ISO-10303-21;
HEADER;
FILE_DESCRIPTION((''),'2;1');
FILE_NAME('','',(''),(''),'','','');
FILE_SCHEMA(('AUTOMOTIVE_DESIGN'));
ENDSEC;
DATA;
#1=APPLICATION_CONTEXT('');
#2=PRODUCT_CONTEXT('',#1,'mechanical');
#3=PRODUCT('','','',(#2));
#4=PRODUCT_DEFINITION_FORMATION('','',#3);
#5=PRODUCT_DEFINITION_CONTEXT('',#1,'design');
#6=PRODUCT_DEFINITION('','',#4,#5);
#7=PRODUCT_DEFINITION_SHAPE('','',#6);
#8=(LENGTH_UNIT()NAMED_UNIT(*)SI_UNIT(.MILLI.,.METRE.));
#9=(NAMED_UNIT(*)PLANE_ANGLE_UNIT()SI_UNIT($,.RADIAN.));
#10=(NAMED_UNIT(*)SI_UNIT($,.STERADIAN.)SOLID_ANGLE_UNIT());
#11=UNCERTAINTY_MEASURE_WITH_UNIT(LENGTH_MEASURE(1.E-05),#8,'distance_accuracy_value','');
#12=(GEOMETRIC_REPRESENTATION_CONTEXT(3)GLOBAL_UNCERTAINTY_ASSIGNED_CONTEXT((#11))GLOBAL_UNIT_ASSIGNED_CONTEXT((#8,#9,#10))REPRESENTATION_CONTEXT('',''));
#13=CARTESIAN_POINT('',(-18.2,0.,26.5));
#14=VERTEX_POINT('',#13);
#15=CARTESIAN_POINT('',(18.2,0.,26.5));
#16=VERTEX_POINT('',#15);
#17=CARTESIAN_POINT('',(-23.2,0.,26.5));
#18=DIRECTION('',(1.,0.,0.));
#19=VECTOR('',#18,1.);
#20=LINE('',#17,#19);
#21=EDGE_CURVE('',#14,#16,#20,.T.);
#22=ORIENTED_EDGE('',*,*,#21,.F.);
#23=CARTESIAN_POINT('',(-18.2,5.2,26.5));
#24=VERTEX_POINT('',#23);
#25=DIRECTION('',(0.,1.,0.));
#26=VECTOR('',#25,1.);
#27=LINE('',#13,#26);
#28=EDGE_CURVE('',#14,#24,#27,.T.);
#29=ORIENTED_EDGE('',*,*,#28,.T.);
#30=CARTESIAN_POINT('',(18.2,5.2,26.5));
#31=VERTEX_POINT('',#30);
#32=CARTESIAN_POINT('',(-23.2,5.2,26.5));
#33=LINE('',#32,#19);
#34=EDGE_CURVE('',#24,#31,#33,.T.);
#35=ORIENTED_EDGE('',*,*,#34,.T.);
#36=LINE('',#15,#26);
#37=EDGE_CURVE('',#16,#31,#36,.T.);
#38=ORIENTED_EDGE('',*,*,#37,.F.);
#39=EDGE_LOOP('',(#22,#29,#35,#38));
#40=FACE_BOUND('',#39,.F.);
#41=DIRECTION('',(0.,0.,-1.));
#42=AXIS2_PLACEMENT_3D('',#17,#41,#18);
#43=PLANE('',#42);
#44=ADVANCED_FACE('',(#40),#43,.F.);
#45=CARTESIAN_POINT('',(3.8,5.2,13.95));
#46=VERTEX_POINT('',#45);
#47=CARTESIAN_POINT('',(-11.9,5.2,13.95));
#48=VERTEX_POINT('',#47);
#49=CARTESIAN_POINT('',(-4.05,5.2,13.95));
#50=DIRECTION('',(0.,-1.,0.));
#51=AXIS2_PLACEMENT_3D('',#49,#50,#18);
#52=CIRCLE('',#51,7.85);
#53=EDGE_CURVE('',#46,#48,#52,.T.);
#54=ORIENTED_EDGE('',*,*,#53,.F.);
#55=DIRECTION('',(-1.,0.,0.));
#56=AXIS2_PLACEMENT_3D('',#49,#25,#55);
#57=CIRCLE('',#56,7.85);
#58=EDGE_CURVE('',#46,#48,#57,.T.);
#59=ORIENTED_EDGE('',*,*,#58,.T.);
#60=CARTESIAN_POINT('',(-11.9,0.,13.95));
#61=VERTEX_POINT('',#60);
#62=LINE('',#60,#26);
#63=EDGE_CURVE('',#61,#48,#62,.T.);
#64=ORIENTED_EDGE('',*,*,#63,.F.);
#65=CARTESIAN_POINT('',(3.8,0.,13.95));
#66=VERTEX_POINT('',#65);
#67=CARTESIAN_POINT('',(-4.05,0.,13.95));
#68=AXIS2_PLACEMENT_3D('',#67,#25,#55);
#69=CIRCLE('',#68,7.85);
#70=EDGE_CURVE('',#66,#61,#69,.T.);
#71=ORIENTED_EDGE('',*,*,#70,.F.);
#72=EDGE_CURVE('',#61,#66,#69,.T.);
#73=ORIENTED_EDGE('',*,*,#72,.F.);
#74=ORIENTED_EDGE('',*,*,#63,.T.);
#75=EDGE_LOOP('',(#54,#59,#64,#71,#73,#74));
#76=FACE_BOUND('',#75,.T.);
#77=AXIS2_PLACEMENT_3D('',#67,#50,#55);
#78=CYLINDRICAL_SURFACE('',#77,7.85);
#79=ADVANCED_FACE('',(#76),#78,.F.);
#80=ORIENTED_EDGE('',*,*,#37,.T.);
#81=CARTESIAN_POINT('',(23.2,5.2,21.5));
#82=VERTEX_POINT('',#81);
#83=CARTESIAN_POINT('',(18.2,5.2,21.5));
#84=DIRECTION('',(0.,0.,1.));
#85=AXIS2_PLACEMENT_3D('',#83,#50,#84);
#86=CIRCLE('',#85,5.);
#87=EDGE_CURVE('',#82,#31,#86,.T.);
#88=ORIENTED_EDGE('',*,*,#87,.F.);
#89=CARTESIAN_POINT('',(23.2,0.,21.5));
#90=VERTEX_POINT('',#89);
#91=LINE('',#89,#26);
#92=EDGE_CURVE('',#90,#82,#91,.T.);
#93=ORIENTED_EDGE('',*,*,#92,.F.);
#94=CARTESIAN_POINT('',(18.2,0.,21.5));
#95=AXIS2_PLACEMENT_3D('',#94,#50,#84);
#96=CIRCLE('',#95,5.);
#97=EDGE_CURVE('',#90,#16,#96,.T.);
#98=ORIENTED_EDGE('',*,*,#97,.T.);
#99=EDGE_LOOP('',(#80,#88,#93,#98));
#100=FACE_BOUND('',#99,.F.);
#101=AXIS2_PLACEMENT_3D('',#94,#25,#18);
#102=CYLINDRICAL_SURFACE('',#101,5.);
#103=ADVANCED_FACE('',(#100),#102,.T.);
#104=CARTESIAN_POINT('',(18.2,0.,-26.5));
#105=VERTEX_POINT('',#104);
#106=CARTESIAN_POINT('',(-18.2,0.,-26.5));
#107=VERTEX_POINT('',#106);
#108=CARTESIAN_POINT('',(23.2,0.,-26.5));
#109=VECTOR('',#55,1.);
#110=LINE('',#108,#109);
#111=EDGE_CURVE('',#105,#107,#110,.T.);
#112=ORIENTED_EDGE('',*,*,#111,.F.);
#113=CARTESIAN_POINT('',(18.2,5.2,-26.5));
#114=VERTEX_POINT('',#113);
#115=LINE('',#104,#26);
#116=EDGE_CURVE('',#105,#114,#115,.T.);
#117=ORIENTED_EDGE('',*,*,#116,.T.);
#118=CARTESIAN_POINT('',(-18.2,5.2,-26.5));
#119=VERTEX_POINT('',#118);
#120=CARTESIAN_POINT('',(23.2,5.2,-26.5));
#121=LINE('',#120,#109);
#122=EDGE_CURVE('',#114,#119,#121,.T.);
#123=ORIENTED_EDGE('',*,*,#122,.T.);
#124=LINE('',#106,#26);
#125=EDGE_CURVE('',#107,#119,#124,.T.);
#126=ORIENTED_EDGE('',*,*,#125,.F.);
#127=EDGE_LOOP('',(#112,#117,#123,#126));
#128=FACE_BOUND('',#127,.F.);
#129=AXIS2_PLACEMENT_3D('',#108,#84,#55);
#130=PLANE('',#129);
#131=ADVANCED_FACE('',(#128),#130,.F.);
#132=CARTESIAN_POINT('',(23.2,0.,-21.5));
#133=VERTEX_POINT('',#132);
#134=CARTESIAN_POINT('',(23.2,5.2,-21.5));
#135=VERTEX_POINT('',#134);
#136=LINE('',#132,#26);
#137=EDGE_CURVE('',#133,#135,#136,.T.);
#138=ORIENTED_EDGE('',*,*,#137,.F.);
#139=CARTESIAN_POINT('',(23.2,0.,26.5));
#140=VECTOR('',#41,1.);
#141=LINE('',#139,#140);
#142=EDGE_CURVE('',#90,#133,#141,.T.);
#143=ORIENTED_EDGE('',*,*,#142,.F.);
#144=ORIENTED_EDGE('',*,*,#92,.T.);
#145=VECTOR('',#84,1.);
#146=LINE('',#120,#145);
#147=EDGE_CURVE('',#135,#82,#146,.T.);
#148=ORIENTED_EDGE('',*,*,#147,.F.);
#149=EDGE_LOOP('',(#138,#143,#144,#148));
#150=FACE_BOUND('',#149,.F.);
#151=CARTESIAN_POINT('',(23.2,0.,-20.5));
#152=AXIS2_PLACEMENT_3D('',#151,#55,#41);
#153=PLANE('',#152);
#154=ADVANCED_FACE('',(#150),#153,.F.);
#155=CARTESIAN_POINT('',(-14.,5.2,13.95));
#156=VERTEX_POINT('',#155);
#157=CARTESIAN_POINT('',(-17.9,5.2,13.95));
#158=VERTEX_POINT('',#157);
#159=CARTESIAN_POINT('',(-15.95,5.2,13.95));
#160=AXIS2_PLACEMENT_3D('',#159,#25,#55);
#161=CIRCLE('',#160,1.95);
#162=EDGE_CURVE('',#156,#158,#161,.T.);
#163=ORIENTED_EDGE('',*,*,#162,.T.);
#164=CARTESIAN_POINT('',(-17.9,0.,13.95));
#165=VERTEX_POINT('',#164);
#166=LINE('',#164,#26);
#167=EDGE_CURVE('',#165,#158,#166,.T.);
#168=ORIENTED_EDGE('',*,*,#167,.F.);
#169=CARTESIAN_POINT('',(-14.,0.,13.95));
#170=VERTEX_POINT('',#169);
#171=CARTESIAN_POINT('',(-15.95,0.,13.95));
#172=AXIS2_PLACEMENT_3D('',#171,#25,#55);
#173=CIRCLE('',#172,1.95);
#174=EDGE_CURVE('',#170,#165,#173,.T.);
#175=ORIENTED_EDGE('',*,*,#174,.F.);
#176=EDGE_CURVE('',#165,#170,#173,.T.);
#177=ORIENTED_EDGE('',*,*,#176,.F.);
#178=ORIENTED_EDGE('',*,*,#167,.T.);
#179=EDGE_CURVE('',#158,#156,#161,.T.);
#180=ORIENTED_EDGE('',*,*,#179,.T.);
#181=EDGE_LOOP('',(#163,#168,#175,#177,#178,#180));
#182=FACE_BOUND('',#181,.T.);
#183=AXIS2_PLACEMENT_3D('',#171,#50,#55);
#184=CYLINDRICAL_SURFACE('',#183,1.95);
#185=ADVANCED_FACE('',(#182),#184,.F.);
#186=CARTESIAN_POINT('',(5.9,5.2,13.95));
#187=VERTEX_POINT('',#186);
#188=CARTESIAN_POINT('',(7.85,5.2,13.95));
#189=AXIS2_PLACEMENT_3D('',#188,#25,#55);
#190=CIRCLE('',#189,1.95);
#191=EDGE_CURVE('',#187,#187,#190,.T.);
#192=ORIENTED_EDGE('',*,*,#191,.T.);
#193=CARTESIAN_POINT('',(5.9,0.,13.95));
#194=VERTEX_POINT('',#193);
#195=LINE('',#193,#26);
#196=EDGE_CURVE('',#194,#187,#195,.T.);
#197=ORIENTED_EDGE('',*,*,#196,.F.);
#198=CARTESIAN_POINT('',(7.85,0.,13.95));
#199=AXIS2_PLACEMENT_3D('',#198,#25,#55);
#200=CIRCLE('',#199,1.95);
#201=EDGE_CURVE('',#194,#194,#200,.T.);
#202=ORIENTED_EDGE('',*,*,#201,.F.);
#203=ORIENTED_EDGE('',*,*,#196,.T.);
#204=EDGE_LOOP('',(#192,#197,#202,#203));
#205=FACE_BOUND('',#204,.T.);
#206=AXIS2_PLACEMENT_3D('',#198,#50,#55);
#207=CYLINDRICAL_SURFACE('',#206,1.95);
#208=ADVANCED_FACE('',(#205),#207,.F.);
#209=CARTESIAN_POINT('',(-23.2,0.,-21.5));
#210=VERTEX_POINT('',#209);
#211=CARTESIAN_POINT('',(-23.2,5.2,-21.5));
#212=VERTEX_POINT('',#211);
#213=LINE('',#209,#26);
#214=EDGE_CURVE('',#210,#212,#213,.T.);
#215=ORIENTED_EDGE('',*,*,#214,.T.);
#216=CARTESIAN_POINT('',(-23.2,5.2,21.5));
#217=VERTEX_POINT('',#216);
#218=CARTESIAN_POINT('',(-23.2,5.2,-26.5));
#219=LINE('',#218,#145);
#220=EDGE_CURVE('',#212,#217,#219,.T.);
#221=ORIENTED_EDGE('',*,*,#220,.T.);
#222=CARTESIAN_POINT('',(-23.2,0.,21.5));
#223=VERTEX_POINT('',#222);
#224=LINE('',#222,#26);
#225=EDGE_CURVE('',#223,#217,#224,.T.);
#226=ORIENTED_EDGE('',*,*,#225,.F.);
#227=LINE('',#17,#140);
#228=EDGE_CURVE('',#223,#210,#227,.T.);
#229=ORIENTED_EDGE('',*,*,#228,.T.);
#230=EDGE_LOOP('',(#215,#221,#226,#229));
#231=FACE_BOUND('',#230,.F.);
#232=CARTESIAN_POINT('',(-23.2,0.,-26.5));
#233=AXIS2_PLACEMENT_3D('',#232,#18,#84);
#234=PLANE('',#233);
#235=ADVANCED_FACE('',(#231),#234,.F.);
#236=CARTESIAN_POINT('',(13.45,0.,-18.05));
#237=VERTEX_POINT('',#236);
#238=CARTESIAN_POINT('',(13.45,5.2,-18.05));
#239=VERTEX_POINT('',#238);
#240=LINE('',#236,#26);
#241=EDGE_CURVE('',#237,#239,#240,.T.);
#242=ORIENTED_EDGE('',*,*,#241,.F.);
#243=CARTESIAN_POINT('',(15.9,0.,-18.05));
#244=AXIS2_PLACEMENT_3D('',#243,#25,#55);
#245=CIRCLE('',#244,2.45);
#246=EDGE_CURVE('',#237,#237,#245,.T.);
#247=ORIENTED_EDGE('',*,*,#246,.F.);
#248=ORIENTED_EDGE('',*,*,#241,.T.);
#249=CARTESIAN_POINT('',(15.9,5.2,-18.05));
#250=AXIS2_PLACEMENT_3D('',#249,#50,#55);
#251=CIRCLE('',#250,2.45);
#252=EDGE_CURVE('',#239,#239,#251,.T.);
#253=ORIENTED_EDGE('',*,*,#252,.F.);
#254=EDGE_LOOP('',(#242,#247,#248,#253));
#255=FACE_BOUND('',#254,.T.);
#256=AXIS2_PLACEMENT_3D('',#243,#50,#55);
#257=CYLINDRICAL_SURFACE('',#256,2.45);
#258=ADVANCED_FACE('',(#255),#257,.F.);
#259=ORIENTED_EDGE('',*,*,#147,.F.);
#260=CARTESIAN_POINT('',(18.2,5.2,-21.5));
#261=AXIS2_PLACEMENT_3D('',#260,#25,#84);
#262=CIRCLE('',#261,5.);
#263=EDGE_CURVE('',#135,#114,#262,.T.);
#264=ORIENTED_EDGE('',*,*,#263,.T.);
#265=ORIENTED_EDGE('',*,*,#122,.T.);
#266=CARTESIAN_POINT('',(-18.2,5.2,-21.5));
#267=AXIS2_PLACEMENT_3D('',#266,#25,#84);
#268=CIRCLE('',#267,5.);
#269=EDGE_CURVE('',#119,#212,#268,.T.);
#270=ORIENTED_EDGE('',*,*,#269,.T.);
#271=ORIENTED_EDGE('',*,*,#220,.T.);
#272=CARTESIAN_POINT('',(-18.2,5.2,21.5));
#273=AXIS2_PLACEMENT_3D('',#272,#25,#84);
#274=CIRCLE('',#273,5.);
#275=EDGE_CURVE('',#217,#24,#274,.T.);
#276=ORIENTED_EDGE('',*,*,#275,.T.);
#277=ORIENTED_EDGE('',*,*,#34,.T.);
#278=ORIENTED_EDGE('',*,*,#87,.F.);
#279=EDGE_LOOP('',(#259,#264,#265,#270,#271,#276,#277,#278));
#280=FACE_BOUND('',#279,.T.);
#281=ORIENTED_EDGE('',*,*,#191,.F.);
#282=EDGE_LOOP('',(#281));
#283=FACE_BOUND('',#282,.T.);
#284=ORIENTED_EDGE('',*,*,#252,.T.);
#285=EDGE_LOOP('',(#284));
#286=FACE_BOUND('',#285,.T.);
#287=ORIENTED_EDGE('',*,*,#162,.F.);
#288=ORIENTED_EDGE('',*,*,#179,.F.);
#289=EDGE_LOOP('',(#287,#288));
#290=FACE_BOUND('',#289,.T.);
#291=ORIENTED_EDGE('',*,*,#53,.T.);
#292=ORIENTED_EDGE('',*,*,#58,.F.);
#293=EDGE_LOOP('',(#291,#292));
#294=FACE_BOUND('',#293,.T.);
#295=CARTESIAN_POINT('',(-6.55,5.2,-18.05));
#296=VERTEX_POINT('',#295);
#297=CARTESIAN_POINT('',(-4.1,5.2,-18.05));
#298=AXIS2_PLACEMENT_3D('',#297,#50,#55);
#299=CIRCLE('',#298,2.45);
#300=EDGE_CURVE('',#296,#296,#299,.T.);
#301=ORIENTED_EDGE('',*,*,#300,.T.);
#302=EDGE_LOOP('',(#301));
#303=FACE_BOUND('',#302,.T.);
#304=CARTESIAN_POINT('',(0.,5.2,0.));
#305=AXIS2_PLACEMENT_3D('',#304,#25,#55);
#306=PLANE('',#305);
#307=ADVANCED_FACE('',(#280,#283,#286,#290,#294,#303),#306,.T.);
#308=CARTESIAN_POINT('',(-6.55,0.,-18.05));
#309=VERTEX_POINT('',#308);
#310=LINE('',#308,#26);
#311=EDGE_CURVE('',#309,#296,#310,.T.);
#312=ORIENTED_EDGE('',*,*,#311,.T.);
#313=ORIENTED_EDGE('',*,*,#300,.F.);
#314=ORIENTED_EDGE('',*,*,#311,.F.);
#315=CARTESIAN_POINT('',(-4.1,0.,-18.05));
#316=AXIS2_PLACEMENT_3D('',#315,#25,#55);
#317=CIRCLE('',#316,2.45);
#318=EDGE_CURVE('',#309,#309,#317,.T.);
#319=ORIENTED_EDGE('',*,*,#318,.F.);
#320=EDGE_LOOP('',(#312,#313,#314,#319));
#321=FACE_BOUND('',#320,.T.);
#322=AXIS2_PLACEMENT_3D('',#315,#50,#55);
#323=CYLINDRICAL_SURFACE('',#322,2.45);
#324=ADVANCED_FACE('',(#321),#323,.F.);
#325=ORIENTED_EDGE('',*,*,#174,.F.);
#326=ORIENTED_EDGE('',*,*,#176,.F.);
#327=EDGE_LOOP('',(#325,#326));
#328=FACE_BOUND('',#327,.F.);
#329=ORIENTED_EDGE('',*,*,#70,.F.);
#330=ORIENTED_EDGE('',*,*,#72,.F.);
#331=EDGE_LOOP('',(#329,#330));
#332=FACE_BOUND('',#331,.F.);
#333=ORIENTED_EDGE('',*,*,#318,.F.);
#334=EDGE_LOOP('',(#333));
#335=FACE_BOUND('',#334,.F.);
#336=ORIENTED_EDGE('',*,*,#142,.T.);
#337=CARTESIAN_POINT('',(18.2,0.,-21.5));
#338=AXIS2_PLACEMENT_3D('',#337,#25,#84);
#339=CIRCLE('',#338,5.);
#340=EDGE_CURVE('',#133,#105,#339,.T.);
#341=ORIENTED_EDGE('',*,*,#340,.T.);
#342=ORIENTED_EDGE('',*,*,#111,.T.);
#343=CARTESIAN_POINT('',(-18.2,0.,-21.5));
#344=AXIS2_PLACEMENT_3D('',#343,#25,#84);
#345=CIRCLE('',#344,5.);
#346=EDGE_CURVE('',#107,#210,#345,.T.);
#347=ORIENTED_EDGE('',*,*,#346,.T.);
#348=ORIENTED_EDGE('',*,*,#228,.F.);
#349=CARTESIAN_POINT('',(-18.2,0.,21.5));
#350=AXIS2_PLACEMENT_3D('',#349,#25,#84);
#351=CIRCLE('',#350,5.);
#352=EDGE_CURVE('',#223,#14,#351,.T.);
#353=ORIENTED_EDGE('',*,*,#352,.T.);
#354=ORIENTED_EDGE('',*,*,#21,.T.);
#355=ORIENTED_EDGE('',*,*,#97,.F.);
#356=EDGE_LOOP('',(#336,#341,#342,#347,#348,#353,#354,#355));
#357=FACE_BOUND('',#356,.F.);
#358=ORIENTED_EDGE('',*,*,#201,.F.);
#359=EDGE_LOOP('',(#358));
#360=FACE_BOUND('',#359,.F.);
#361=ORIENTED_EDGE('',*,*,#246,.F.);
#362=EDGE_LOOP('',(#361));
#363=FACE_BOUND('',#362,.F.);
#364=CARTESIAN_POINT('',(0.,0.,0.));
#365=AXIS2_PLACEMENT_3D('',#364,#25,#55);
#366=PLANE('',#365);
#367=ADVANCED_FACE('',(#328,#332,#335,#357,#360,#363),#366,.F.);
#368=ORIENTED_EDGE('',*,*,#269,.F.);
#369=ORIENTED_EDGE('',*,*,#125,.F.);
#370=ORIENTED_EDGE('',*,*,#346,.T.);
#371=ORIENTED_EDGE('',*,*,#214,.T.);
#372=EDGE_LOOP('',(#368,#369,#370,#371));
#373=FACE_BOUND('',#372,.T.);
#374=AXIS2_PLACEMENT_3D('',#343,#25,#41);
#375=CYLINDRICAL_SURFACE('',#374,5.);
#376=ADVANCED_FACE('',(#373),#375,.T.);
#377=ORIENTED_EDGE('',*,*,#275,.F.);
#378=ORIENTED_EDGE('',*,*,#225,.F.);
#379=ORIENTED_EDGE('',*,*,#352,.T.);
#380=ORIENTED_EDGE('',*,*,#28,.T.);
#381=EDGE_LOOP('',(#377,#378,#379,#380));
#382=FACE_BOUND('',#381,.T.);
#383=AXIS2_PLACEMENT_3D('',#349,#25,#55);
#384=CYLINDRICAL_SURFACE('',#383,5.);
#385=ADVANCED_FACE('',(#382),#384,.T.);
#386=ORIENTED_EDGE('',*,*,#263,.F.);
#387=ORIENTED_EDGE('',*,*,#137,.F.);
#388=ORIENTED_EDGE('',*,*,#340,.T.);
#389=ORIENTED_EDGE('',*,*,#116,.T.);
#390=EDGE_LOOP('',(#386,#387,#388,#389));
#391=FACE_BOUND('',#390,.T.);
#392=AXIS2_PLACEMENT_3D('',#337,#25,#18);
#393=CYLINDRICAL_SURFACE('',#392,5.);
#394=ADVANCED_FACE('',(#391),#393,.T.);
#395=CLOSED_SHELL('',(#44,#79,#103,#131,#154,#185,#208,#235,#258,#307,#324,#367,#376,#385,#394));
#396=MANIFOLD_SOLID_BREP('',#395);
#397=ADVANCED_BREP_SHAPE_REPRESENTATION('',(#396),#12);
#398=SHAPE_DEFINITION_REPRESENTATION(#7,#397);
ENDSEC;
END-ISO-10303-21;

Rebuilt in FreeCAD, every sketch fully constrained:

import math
import FreeCAD as App
import Part
import Sketcher
from FreeCAD import Vector


def edges_at(feature, points):
    """Names of the edges that pass closest to the given points."""
    edges = feature.Shape.Edges
    near = lambda p: min(range(len(edges)), key=lambda i: edges[i].distToShape(Part.Vertex(*p))[0])
    return sorted({f"Edge{near(p) + 1}" for p in points})


def add_polygon(sketch, points):
    """Adds a closed chain of lines whose ends are joined by coincident constraints."""
    first, n = sketch.GeometryCount, len(points)
    for a, b in zip(points, points[1:] + points[:1]):
        sketch.addGeometry(Part.LineSegment(App.Vector(*a, 0), App.Vector(*b, 0)), False)
    for i in range(n):
        sketch.addConstraint(Sketcher.Constraint("Coincident", first + i, 2, first + (i + 1) % n, 1))

doc = App.newDocument("Part")
params = doc.addObject("Spreadsheet::Sheet", "Params")
for row, (alias, value) in enumerate([
    ("sketch1_diameter", "3.9 mm"),
    ("sketch1_diameter2", "4.9 mm"),
    ("sketch1_height", "53 mm"),
    ("sketch1_radius", "7.85 mm"),
    ("sketch1_width", "46.4 mm"),
    ("pad1_length", "5.2 mm"),
    ("fillet_radius", "5 mm"),
], start=1):
    params.set(f"A{row}", alias)
    params.set(f"B{row}", "=" + value)
    params.setAlias(f"B{row}", alias)

body = doc.addObject("PartDesign::Body", "Body")

# Sketch on XZ plane
sketch1 = body.newObject("Sketcher::SketchObject", "Sketch")
sketch1.AttachmentSupport = (doc.getObject("XZ_Plane"), [""])
sketch1.MapMode = "FlatFace"
add_polygon(sketch1, [(23.2, -26.5), (-23.2, -26.5), (-23.2, 26.5), (23.2, 26.5)])  # lines 0-3
sketch1.addGeometry(Part.ArcOfCircle(Part.Circle(Vector(-4, 13.9, 0), Vector(0, 0, 1), 7.8), math.radians(0), math.radians(180)), False)  # 4
sketch1.addGeometry(Part.ArcOfCircle(Part.Circle(Vector(-4, 13.9, 0), Vector(0, 0, 1), 7.8), math.radians(180), math.radians(360)), False)  # 5
sketch1.addGeometry(Part.Circle(Vector(-15.9, 13.9, 0), Vector(0, 0, 1), 1.9), False)  # 6
sketch1.addGeometry(Part.Circle(Vector(-4.1, -18.1, 0), Vector(0, 0, 1), 2.5), False)  # 7
sketch1.addGeometry(Part.Circle(Vector(15.9, -18.1, 0), Vector(0, 0, 1), 2.5), False)  # 8
sketch1.addGeometry(Part.Circle(Vector(7.8, 13.9, 0), Vector(0, 0, 1), 1.9), False)  # 9
sketch1.addConstraint([
    Sketcher.Constraint("Tangent", 4, 1, 5, 2),
    Sketcher.Constraint("Coincident", 5, 1, 4, 2),
    Sketcher.Constraint("Horizontal", 0),
    Sketcher.Constraint("Vertical", 1),
    Sketcher.Constraint("Horizontal", 2),
    Sketcher.Constraint("Vertical", 3),
    Sketcher.Constraint("Equal", 7, 8),
    Sketcher.Constraint("Equal", 6, 9),
    Sketcher.Constraint("Symmetric", 0, 2, 2, 2, -1, 1),
    Sketcher.Constraint("Horizontal", 5, 3, 6, 3),
    Sketcher.Constraint("Horizontal", 7, 3, 8, 3),
    Sketcher.Constraint("Horizontal", 6, 3, 9, 3),
    Sketcher.Constraint("Horizontal", 9, 3, 4, 1),
    Sketcher.Constraint("Horizontal", 4, 1, 5, 1),
    Sketcher.Constraint("Diameter", 6, 3.9),
    Sketcher.Constraint("Diameter", 7, 4.9),
    Sketcher.Constraint("DistanceY", 1, 1, 1, 2, 53.0),
    Sketcher.Constraint("Radius", 4, 7.85),
    Sketcher.Constraint("DistanceX", 0, 2, 0, 1, 46.4),
    Sketcher.Constraint("DistanceX", 1, 2, 5, 1, 11.3),
    Sketcher.Constraint("DistanceY", 7, 3, 4, 3, 32.0),
    Sketcher.Constraint("DistanceX", 7, 3, 8, 3, 20.0),
    Sketcher.Constraint("DistanceX", 7, 3, -1, 1, 4.1),
    Sketcher.Constraint("DistanceX", 6, 3, 4, 3, 11.9),
    Sketcher.Constraint("DistanceX", 4, 3, 9, 3, 11.9),
    Sketcher.Constraint("DistanceY", -1, 1, 4, 3, 13.95),
])
sketch1.setExpression("Constraints[18]", "Params.sketch1_diameter")
sketch1.setExpression("Constraints[19]", "Params.sketch1_diameter2")
sketch1.setExpression("Constraints[20]", "Params.sketch1_height")
sketch1.setExpression("Constraints[21]", "Params.sketch1_radius")
sketch1.setExpression("Constraints[22]", "Params.sketch1_width")
pad1 = body.newObject("PartDesign::Pad", "Pad")
pad1.Profile = sketch1
pad1.setExpression("Length", "Params.pad1_length")
pad1.Reversed = True
doc.recompute()

fillet = body.newObject("PartDesign::Fillet", "Fillet")
fillet.Base = (pad1, edges_at(pad1, [
    (-23.2, 2.6, 26.5),
    (-23.2, 2.6, -26.5),
    (23.2, 2.6, -26.5),
    (23.2, 2.6, 26.5),
]))
fillet.setExpression("Radius", "Params.fillet_radius")

doc.recompute()
